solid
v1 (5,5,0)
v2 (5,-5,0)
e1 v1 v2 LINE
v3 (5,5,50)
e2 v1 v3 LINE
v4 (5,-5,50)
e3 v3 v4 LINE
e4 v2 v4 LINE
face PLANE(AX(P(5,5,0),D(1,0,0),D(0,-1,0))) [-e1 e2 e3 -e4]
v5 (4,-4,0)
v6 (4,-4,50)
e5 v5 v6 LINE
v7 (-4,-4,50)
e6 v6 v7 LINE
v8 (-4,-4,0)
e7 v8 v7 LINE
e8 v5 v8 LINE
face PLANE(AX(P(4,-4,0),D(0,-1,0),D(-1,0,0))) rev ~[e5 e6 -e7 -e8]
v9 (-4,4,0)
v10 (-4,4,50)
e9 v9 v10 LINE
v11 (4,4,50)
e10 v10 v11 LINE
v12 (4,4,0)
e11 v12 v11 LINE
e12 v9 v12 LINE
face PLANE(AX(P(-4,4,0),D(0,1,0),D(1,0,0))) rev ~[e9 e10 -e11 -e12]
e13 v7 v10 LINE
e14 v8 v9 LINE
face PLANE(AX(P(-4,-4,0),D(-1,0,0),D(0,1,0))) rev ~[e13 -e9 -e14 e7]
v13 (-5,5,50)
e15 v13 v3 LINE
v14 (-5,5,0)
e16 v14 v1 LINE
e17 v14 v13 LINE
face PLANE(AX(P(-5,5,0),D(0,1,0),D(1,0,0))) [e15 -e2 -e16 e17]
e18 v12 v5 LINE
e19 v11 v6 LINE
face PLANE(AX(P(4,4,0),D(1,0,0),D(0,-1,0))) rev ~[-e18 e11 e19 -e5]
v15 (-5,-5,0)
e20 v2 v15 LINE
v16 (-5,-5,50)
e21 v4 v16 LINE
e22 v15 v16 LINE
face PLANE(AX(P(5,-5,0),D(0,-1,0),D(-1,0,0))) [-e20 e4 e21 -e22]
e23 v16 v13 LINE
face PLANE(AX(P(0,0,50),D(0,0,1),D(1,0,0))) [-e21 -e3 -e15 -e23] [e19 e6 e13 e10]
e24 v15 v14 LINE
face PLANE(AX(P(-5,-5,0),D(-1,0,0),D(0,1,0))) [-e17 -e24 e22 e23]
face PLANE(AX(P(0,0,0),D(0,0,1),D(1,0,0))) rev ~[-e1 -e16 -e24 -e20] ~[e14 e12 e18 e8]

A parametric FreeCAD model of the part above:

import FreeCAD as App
import Part
import Sketcher
Q = App.Units.Quantity

doc = App.newDocument("Part")
body = doc.addObject("PartDesign::Body", "Body")

sketch1 = body.newObject("Sketcher::SketchObject", "Sketch")
sketch1.AttachmentSupport = (doc.getObject("XY_Plane"), [""])
sketch1.MapMode = "FlatFace"
sketch1.addGeometry(Part.LineSegment(App.Vector(5, 5, 0), App.Vector(-5, 5, 0)), False)
sketch1.addGeometry(Part.LineSegment(App.Vector(-5, 5, 0), App.Vector(-5, -5, 0)), False)
sketch1.addGeometry(Part.LineSegment(App.Vector(-5, -5, 0), App.Vector(5, -5, 0)), False)
sketch1.addGeometry(Part.LineSegment(App.Vector(5, -5, 0), App.Vector(5, 5, 0)), False)
sketch1.addGeometry(Part.LineSegment(App.Vector(-4, -4, 0), App.Vector(-4, 4, 0)), False)
sketch1.addGeometry(Part.LineSegment(App.Vector(-4, 4, 0), App.Vector(4, 4, 0)), False)
sketch1.addGeometry(Part.LineSegment(App.Vector(4, 4, 0), App.Vector(4, -4, 0)), False)
sketch1.addGeometry(Part.LineSegment(App.Vector(4, -4, 0), App.Vector(-4, -4, 0)), False)
sketch1.addConstraint(Sketcher.Constraint("Coincident", 0, 2, 1, 1))
sketch1.addConstraint(Sketcher.Constraint("Coincident", 1, 2, 2, 1))
sketch1.addConstraint(Sketcher.Constraint("Coincident", 2, 2, 3, 1))
sketch1.addConstraint(Sketcher.Constraint("Coincident", 3, 2, 0, 1))
sketch1.addConstraint(Sketcher.Constraint("Coincident", 4, 2, 5, 1))
sketch1.addConstraint(Sketcher.Constraint("Coincident", 5, 2, 6, 1))
sketch1.addConstraint(Sketcher.Constraint("Coincident", 6, 2, 7, 1))
sketch1.addConstraint(Sketcher.Constraint("Coincident", 7, 2, 4, 1))
sketch1.addConstraint(Sketcher.Constraint("Horizontal", 0))
sketch1.addConstraint(Sketcher.Constraint("Vertical", 1))
sketch1.addConstraint(Sketcher.Constraint("Horizontal", 2))
sketch1.addConstraint(Sketcher.Constraint("Vertical", 3))
sketch1.addConstraint(Sketcher.Constraint("Vertical", 4))
sketch1.addConstraint(Sketcher.Constraint("Horizontal", 5))
sketch1.addConstraint(Sketcher.Constraint("Vertical", 6))
sketch1.addConstraint(Sketcher.Constraint("Horizontal", 7))
sketch1.addConstraint(Sketcher.Constraint("Symmetric", 0, 2, 2, 2, -1, 1))
sketch1.addConstraint(Sketcher.Constraint("Symmetric", 4, 2, 6, 2, -1, 1))
sketch1.addConstraint(Sketcher.Constraint("Equal", 2, 1))
sketch1.addConstraint(Sketcher.Constraint("Equal", 7, 4))
sketch1.addConstraint(Sketcher.Constraint("DistanceX", 0, 2, 0, 1, Q("10 mm")))
sketch1.addConstraint(Sketcher.Constraint("DistanceX", 5, 1, 5, 2, Q("8 mm")))
pad1 = body.newObject("PartDesign::Pad", "Pad")
pad1.Profile = sketch1
pad1.Length = 50

doc.recompute()
